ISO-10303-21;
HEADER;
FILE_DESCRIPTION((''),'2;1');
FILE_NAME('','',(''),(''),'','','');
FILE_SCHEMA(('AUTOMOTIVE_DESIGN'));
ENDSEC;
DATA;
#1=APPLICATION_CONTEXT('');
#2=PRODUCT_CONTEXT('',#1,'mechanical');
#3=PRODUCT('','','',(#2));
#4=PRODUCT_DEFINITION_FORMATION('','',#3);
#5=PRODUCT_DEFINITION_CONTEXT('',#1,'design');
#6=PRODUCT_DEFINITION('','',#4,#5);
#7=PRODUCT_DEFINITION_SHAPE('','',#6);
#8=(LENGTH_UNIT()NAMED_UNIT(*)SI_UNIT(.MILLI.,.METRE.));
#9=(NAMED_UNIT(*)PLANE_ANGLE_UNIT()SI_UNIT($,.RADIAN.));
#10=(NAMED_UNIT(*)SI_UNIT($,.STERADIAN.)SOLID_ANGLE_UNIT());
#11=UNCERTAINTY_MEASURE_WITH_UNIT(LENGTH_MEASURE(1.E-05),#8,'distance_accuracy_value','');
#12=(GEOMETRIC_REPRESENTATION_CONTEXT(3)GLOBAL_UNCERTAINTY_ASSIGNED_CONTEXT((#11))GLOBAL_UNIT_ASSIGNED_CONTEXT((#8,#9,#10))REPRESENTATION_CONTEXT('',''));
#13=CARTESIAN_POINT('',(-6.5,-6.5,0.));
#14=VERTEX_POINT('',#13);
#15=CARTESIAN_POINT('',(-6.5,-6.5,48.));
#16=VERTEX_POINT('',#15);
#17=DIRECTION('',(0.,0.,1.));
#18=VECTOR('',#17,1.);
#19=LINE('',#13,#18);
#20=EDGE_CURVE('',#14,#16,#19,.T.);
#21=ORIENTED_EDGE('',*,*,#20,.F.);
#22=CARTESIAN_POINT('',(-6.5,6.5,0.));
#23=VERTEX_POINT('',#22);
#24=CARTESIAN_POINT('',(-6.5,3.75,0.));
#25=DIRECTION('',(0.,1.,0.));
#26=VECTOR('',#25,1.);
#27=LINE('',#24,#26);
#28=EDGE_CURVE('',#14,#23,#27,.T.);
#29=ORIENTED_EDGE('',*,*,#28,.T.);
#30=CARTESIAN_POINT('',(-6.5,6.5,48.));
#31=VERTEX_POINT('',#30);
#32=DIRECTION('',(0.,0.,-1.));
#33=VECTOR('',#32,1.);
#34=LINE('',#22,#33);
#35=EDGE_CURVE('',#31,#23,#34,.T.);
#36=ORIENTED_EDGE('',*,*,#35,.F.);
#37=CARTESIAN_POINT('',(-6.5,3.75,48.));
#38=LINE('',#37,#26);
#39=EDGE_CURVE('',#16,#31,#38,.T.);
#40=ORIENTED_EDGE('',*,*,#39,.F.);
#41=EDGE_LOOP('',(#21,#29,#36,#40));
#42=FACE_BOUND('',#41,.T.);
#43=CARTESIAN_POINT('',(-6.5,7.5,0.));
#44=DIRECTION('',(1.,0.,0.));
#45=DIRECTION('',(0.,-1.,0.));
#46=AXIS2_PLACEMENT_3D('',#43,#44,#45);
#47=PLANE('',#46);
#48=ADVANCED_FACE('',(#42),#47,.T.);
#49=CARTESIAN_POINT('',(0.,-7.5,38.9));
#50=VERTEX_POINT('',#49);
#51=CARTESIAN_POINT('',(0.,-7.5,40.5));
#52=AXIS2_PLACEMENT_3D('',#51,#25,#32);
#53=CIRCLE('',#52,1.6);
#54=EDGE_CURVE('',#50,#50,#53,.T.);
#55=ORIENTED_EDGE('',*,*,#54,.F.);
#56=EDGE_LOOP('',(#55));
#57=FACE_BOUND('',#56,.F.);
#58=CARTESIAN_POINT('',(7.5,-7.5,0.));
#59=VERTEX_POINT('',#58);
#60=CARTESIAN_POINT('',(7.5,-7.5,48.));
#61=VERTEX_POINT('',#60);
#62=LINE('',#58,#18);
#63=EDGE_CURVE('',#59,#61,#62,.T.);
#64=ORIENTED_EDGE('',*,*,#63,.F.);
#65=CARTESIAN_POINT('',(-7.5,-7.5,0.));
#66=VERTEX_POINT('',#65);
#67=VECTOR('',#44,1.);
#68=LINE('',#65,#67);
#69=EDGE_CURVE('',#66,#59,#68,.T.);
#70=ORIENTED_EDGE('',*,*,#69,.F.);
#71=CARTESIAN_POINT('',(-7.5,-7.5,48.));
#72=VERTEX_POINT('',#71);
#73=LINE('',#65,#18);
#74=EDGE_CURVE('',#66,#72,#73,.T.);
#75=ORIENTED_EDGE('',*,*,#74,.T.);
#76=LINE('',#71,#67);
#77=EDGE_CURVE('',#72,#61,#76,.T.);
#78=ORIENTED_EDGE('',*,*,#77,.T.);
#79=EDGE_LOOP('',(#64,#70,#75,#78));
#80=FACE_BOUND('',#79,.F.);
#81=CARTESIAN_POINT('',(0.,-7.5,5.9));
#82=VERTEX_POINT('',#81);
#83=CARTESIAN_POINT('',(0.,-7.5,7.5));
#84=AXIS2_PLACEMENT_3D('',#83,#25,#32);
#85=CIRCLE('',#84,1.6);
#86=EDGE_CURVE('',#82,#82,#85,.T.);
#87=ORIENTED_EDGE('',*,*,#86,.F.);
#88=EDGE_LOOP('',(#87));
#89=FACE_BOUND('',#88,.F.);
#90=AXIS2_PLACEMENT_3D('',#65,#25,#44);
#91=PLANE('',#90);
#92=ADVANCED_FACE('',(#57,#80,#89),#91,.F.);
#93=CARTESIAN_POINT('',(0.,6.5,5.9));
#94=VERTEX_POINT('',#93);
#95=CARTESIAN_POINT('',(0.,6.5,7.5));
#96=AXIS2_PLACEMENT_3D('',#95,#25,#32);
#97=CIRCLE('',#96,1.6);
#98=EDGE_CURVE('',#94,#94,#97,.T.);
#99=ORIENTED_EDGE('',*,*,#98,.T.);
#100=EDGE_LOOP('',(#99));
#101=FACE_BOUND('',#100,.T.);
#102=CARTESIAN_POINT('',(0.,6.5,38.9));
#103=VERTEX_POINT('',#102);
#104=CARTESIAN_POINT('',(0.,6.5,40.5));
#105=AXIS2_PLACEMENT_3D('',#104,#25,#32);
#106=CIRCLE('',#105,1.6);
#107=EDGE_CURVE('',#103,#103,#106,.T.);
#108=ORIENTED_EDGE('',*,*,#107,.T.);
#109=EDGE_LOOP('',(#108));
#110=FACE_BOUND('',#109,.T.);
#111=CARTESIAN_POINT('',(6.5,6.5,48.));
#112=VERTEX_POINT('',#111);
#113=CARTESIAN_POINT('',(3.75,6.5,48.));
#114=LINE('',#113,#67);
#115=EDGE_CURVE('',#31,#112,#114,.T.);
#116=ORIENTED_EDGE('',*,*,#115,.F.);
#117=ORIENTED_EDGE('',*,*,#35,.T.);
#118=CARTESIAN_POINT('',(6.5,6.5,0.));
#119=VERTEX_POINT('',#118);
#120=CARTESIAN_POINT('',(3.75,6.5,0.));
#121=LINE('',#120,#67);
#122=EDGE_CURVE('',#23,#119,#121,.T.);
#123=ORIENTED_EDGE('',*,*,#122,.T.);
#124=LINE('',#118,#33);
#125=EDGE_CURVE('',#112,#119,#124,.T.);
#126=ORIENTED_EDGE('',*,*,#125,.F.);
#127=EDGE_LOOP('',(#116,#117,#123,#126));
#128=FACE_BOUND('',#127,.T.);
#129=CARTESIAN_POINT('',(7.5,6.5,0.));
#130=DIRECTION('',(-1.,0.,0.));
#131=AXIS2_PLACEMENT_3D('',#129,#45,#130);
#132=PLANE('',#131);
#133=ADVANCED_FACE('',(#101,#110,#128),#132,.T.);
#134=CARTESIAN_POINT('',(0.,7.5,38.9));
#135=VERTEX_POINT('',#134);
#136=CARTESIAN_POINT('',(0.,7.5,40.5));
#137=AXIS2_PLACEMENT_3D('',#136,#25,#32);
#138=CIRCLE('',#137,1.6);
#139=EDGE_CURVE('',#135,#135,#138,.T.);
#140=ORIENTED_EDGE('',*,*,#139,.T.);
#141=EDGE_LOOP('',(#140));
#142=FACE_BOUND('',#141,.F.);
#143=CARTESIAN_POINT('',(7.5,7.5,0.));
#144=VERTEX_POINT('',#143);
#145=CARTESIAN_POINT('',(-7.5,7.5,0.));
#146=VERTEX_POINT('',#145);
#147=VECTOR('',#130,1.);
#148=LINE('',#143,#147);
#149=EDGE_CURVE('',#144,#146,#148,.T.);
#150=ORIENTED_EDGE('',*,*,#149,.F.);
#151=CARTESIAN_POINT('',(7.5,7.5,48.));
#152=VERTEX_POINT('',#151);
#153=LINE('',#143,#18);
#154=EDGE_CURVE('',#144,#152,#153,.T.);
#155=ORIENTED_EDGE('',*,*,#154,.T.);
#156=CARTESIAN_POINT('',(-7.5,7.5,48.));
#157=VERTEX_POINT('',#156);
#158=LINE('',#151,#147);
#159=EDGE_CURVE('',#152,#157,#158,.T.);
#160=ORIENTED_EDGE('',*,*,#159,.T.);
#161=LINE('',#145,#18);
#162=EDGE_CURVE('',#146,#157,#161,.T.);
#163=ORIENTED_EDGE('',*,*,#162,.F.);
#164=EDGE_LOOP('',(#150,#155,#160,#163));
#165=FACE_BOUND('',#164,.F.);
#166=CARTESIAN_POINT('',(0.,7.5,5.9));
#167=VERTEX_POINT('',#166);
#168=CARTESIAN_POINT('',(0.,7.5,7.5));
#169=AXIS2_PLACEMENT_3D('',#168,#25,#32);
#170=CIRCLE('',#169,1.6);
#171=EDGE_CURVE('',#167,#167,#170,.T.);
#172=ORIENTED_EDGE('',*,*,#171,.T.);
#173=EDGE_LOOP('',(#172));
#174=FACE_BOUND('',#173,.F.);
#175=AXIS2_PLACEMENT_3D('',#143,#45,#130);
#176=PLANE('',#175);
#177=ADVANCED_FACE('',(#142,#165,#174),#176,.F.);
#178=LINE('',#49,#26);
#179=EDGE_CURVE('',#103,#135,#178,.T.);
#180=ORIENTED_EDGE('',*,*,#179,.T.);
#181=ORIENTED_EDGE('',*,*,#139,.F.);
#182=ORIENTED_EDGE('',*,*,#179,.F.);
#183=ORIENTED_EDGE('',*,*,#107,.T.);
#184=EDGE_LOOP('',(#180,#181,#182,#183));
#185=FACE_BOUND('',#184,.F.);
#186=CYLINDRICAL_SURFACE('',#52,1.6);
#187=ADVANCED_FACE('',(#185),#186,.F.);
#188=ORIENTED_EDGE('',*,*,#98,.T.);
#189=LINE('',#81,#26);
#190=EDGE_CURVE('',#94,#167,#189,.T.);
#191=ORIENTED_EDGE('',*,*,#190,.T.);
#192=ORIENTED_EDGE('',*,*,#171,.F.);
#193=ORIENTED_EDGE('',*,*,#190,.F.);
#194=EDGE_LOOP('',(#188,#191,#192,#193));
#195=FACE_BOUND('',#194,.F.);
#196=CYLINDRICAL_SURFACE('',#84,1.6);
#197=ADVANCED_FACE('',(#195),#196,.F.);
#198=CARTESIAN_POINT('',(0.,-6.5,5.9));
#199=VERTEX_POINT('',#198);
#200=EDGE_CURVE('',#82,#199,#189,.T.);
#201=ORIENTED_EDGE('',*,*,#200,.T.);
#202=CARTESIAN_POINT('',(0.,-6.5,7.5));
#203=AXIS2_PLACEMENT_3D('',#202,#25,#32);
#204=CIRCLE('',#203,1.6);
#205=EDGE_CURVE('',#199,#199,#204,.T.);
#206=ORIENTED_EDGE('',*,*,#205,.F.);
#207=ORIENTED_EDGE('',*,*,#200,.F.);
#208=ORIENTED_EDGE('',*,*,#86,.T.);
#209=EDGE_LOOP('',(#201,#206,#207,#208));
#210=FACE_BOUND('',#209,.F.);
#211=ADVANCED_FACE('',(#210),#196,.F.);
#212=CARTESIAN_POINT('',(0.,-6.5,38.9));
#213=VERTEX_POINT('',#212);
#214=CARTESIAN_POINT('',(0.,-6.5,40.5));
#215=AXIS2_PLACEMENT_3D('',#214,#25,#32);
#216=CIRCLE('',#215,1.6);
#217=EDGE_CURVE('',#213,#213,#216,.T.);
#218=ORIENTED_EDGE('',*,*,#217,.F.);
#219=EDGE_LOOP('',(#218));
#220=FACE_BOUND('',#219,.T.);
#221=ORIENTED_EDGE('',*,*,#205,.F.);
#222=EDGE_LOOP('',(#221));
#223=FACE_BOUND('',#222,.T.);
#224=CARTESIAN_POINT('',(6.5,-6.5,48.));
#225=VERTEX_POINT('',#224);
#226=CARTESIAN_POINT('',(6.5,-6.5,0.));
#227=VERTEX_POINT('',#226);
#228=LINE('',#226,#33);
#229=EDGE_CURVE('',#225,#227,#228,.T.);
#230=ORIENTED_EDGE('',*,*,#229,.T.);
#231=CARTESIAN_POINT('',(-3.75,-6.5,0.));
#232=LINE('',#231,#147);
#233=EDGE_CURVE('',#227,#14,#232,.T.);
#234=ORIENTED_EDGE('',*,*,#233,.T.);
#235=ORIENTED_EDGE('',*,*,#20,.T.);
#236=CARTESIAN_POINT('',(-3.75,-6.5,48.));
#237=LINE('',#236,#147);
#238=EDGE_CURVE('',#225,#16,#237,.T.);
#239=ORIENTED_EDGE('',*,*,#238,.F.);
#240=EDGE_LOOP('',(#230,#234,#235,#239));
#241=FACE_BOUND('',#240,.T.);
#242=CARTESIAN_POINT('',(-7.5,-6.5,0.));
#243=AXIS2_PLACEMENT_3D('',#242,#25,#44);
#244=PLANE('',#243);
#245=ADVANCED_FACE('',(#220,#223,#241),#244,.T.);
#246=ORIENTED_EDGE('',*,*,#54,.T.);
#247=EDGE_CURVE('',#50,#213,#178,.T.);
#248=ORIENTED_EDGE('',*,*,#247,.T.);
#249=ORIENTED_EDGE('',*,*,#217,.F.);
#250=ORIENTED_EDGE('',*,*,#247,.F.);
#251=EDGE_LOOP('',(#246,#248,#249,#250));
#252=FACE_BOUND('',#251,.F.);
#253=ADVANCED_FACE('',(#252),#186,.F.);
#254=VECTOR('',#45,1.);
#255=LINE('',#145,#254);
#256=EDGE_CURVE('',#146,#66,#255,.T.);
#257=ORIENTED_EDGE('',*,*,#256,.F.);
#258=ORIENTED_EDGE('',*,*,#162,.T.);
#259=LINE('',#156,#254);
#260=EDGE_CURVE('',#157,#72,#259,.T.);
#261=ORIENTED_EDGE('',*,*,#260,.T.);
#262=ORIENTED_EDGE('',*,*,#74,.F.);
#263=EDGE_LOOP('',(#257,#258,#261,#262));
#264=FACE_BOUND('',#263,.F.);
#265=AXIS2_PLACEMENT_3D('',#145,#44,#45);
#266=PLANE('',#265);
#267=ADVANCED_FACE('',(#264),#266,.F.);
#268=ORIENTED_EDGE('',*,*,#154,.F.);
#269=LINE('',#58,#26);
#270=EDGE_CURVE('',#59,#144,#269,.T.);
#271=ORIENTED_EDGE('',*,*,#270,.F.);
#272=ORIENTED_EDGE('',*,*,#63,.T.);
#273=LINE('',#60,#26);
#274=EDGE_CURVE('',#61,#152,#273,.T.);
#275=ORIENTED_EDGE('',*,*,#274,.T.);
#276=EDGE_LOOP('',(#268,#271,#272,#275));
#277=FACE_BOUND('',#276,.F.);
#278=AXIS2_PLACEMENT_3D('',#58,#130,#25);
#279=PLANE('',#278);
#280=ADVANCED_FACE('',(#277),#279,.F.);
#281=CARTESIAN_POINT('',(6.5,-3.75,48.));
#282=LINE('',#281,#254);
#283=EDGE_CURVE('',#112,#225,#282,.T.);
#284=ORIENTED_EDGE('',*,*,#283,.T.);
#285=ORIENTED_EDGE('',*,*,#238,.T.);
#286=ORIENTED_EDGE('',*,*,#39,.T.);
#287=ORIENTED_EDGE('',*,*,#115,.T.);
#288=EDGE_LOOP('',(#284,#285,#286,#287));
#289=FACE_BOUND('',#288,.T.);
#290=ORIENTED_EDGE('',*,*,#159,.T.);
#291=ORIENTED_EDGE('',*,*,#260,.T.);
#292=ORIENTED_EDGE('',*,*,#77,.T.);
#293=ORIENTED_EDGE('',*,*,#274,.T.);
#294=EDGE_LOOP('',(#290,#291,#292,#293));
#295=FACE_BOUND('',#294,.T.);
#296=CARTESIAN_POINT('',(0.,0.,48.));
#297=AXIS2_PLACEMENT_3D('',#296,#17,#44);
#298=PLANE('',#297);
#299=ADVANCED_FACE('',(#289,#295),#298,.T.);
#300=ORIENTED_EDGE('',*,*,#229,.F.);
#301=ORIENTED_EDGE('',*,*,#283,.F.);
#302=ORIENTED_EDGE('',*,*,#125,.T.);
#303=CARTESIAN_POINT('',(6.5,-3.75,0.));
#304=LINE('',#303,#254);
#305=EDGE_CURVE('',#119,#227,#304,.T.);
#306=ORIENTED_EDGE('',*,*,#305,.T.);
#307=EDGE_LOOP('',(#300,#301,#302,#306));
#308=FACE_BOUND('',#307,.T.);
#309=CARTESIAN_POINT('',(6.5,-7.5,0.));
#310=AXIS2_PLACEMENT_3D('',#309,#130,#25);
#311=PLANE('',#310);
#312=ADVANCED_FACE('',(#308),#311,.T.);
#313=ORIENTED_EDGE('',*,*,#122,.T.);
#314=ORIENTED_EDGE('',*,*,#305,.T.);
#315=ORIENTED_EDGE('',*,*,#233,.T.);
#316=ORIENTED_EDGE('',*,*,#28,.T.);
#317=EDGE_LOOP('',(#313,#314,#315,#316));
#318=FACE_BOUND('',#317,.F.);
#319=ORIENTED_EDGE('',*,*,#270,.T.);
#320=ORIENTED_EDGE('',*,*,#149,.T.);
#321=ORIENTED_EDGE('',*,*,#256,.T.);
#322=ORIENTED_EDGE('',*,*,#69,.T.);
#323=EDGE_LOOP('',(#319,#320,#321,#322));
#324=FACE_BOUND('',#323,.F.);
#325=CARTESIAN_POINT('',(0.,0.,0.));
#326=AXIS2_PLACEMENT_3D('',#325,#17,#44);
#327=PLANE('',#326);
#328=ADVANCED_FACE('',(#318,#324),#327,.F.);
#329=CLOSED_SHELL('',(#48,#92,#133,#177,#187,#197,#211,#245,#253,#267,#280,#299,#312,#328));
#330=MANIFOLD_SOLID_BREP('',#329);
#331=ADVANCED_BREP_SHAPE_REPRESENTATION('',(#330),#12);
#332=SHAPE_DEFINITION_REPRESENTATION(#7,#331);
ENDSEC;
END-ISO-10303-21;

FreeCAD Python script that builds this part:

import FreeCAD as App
import Part
import Sketcher

V = App.Vector
Q = App.Units.Quantity


def faces_at(feature, points):
    """Names of the faces that lie closest to the given points."""
    faces = feature.Shape.Faces
    near = lambda p: min(range(len(faces)), key=lambda i: faces[i].distToShape(Part.Vertex(*p))[0])
    return sorted({f"Face{near(p) + 1}" for p in points})

doc = App.newDocument("Part")
body = doc.addObject("PartDesign::Body", "Body")

sketch1 = doc.addObject("Sketcher::SketchObject", "Sketch")
body.addObject(sketch1)
sketch1.AttachmentSupport = (doc.XY_Plane, [""])
sketch1.MapMode = "FlatFace"
sketch1.addGeometry(Part.LineSegment(V(-8, 8, 0), V(-8, -8, 0)), False)
sketch1.addGeometry(Part.LineSegment(V(-8, -8, 0), V(8, -8, 0)), False)
sketch1.addGeometry(Part.LineSegment(V(8, -8, 0), V(8, 8, 0)), False)
sketch1.addGeometry(Part.LineSegment(V(8, 8, 0), V(-8, 8, 0)), False)
sketch1.addConstraint(Sketcher.Constraint("Coincident", 0, 2, 1, 1))
sketch1.addConstraint(Sketcher.Constraint("Coincident", 1, 2, 2, 1))
sketch1.addConstraint(Sketcher.Constraint("Coincident", 2, 2, 3, 1))
sketch1.addConstraint(Sketcher.Constraint("Coincident", 3, 2, 0, 1))
sketch1.addConstraint(Sketcher.Constraint("Vertical", 0))
sketch1.addConstraint(Sketcher.Constraint("Horizontal", 1))
sketch1.addConstraint(Sketcher.Constraint("Vertical", 2))
sketch1.addConstraint(Sketcher.Constraint("Horizontal", 3))
sketch1.addConstraint(Sketcher.Constraint("Symmetric", 0, 2, 2, 2, -1, 1))
sketch1.addConstraint(Sketcher.Constraint("Equal", 3, 0))
sketch1.addConstraint(Sketcher.Constraint("DistanceX", 1, 1, 1, 2, Q("15 mm")))
pad1 = doc.addObject("PartDesign::Pad", "Pad")
body.addObject(pad1)
pad1.Profile = sketch1
pad1.Length = 48
doc.recompute()

thickness = doc.addObject("PartDesign::Thickness", "Thickness")
body.addObject(thickness)
thickness.Base = (pad1, faces_at(pad1, [(-2.5, 2.5, 0), (-2.5, 2.5, 48)]))
thickness.Value = 1
thickness.Reversed = True
thickness.Join = "Intersection"

sketch2 = doc.addObject("Sketcher::SketchObject", "Sketch001")
body.addObject(sketch2)
sketch2.AttachmentSupport = (doc.XZ_Plane, [""])
sketch2.MapMode = "FlatFace"
sketch2.AttachmentOffset = App.Placement(V(0, 0, 7.5), App.Rotation())
sketch2.addGeometry(Part.Circle(V(0, 7.5, 0), V(0, 0, 1), 1.6), False)
sketch2.addGeometry(Part.Circle(V(0, 40.5, 0), V(0, 0, 1), 1.6), False)
sketch2.addConstraint(Sketcher.Constraint("Equal", 0, 1))
sketch2.addConstraint(Sketcher.Constraint("PointOnObject", 0, 3, -2))
sketch2.addConstraint(Sketcher.Constraint("PointOnObject", 1, 3, -2))
sketch2.addConstraint(Sketcher.Constraint("Diameter", 0, Q("3.2 mm")))
sketch2.addConstraint(Sketcher.Constraint("DistanceY", 0, 3, 1, 3, Q("33 mm")))
sketch2.addConstraint(Sketcher.Constraint("DistanceY", -1, 1, 0, 3, Q("7.5 mm")))
doc.recompute()
hole = doc.addObject("PartDesign::Hole", "Hole")
body.addObject(hole)
hole.Profile = sketch2
hole.ThreadType = "None"
hole.Diameter = 3.2
hole.DepthType = "ThroughAll"

doc.recompute()
